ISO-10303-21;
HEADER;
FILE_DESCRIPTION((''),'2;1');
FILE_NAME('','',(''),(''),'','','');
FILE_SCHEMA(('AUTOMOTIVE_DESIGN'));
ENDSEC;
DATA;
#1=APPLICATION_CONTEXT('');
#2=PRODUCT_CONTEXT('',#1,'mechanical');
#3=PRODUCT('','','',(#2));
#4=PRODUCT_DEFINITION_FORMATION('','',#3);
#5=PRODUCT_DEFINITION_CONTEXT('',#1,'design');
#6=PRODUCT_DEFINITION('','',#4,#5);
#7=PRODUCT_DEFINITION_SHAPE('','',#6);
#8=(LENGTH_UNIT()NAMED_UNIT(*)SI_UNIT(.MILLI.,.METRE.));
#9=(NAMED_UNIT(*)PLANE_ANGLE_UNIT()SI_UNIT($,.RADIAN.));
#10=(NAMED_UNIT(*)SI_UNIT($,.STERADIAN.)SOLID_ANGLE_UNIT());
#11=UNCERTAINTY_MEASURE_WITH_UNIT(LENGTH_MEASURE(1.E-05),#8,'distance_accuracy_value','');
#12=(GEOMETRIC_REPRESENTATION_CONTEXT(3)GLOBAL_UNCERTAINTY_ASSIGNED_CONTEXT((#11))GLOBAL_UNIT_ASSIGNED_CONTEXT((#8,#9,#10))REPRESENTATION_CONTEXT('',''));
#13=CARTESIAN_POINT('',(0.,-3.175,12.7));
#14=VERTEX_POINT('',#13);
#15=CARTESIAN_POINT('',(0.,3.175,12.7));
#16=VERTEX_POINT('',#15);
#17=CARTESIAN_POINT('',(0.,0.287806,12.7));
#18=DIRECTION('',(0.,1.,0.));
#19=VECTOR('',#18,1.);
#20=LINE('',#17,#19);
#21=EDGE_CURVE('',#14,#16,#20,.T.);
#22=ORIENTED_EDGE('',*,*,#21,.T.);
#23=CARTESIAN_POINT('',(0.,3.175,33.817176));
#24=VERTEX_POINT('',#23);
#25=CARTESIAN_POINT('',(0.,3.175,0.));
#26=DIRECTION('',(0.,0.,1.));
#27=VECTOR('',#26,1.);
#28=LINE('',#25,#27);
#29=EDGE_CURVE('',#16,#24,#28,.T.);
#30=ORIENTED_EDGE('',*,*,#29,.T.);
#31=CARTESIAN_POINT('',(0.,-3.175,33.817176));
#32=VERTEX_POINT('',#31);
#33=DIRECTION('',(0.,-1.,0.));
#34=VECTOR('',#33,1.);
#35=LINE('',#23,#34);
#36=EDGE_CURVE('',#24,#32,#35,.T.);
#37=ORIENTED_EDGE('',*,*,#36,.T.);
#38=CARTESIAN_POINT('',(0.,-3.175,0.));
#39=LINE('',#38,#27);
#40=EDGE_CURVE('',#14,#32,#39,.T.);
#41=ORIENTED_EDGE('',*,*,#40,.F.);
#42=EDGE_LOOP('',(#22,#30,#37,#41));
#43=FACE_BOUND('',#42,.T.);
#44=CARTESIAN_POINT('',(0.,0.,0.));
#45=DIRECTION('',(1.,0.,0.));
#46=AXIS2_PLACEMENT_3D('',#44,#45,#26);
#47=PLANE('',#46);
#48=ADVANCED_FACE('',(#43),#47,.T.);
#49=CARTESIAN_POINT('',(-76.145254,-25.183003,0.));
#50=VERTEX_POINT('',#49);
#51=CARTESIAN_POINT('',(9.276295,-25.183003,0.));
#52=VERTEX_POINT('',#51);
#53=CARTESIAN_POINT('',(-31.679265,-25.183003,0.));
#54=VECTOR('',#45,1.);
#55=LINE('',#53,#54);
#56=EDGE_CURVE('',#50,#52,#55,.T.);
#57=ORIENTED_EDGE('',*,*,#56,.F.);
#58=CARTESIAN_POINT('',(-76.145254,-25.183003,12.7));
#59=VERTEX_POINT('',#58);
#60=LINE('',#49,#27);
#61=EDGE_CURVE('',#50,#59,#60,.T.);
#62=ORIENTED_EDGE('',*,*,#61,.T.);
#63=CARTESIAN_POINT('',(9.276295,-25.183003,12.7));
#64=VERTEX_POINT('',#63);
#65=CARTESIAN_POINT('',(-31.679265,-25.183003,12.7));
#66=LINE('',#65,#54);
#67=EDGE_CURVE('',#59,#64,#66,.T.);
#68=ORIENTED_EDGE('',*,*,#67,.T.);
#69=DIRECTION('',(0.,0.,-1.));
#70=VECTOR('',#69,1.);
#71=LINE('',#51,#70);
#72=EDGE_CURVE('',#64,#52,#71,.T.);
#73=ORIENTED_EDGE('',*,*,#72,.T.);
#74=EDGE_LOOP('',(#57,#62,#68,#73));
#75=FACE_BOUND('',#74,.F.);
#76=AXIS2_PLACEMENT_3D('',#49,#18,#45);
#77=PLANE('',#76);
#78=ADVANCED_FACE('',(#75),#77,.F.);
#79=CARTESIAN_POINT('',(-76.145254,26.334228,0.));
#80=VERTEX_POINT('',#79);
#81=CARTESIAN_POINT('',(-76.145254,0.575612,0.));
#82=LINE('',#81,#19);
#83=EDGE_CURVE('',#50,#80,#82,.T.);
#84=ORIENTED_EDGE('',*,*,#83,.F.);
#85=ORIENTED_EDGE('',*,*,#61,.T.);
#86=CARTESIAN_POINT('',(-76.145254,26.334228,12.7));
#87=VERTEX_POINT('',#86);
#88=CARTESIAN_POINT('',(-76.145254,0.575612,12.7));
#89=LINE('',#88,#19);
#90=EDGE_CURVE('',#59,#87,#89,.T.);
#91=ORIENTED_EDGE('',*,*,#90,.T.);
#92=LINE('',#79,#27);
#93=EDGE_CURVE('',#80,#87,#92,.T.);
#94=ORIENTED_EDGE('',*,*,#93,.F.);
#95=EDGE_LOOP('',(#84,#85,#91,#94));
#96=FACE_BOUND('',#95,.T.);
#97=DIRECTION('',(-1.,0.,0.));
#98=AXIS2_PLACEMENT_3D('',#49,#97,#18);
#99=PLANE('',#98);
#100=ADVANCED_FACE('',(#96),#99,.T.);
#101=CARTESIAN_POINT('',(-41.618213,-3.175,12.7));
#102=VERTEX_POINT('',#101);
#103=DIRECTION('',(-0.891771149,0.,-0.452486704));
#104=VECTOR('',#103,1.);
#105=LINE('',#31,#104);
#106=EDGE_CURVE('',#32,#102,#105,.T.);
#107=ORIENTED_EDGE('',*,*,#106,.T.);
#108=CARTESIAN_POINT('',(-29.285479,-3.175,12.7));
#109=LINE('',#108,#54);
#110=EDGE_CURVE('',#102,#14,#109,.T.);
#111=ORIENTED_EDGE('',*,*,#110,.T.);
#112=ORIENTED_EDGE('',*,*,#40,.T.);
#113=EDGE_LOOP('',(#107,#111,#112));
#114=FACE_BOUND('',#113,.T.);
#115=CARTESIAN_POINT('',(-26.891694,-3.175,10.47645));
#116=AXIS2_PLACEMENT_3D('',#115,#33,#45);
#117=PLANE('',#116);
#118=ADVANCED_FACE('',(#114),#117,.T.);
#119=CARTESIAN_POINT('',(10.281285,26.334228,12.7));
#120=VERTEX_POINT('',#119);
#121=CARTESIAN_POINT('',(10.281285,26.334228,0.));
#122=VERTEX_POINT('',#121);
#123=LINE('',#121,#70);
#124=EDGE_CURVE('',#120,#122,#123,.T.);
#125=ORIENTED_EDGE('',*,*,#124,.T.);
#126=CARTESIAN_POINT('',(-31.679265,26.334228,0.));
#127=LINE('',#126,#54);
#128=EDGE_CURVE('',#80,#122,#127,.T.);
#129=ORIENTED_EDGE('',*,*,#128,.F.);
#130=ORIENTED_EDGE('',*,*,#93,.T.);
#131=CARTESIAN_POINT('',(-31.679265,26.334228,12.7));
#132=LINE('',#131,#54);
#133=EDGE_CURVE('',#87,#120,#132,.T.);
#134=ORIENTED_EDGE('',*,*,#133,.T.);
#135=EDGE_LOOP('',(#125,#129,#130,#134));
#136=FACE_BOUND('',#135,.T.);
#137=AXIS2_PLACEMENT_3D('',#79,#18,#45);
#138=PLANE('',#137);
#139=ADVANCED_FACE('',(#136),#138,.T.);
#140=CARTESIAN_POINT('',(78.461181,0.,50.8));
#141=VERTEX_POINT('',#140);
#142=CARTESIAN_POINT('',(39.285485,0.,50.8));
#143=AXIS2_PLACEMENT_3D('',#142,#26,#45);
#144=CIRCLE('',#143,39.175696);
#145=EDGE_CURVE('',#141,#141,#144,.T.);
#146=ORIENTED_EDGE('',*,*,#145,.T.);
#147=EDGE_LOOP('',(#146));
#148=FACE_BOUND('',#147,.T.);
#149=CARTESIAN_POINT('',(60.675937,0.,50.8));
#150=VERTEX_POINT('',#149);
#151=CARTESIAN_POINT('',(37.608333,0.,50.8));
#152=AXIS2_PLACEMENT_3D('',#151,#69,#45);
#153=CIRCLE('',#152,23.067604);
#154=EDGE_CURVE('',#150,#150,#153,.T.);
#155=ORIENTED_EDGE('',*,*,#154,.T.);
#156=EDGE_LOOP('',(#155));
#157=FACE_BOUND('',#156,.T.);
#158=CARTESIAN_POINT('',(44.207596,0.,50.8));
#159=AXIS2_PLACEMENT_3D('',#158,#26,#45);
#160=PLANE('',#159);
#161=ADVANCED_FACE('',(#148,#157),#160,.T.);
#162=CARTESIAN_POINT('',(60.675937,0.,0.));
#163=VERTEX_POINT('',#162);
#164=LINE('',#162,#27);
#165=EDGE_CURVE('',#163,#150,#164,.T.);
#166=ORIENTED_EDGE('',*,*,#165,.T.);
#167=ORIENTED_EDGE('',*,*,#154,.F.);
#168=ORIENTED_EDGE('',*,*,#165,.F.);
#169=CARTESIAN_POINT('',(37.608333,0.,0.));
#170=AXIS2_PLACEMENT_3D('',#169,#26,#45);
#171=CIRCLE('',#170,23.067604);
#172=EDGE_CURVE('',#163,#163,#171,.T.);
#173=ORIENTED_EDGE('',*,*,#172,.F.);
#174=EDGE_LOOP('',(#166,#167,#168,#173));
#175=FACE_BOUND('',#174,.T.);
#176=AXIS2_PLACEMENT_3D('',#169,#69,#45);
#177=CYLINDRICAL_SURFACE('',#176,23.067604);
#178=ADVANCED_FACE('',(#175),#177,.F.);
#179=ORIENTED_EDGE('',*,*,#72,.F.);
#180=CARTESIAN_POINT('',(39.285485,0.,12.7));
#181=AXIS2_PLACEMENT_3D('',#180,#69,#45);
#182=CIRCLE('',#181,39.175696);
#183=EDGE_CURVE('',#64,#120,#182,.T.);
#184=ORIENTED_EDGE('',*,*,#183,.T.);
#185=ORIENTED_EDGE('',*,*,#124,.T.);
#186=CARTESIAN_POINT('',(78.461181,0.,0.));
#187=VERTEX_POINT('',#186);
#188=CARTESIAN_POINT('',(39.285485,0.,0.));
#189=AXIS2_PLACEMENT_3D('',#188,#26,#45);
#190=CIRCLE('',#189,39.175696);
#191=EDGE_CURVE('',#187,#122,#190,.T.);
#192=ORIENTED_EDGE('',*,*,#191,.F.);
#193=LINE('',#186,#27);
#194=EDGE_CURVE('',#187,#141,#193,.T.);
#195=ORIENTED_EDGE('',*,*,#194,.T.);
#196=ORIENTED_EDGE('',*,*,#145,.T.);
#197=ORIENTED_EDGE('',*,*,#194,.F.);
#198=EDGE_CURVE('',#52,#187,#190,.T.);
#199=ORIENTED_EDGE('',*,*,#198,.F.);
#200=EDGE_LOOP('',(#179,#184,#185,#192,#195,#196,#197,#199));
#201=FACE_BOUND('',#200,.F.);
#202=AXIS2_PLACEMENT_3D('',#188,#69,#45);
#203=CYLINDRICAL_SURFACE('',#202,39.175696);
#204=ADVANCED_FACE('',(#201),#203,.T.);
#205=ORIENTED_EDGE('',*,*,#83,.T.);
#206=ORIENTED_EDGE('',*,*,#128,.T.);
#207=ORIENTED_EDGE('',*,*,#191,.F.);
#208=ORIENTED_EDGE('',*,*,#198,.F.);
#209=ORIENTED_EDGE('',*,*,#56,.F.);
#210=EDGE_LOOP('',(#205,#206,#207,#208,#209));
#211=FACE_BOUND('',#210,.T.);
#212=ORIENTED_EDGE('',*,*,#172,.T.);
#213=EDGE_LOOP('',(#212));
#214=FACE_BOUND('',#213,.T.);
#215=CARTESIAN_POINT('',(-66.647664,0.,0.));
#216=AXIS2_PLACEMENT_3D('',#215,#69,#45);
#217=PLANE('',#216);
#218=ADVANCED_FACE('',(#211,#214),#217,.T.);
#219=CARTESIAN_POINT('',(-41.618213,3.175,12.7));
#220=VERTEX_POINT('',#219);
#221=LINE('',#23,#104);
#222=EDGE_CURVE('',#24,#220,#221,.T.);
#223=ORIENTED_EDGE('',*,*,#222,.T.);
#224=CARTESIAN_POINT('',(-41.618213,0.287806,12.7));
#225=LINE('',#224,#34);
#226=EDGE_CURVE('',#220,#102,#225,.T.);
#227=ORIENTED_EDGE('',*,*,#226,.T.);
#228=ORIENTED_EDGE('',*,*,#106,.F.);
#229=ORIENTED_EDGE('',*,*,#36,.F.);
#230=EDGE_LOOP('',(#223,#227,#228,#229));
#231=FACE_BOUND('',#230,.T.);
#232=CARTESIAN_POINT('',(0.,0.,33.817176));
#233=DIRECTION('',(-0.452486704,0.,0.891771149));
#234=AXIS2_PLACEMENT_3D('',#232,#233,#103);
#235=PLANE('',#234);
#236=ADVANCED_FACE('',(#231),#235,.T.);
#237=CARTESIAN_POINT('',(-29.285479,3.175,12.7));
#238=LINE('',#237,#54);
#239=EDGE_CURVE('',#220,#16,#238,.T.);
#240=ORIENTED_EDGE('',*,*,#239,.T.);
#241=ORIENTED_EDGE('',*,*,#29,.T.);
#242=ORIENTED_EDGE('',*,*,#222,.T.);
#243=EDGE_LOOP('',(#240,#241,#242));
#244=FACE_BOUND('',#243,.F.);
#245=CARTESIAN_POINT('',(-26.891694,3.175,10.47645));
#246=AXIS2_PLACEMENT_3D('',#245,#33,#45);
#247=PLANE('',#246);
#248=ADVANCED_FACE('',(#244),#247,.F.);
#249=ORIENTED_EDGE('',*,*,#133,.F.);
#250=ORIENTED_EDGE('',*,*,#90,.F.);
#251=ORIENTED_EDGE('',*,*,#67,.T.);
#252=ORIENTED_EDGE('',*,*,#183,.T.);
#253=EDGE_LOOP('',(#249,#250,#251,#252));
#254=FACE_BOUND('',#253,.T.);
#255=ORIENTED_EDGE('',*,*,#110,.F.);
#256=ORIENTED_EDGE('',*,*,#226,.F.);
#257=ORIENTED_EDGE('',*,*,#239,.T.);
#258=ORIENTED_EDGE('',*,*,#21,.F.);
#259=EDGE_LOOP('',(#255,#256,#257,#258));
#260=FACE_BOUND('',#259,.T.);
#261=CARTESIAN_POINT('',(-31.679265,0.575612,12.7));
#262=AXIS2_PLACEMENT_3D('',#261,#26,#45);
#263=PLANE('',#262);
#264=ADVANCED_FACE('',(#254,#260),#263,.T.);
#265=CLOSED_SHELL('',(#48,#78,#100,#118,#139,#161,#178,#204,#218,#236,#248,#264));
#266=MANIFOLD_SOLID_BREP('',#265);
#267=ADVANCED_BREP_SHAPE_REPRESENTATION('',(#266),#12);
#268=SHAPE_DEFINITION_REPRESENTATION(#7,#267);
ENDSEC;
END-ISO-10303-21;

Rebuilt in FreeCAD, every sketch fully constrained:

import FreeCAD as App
import Part
import Sketcher
from FreeCAD import Vector

doc = App.newDocument("Part")
params = doc.addObject("Spreadsheet::Sheet", "Params")
for row, (alias, value) in enumerate([
    ("pad1_length", "2 in"),
    ("pocket1_length", "5.12 in"),
    ("pad2_length", "0.5 in"),
    ("pad3_length", "0.25 in"),
], start=1):
    params.set(f"A{row}", alias)
    params.set(f"B{row}", "=" + value)
    params.setAlias(f"B{row}", alias)

body = doc.addObject("PartDesign::Body", "Body")

sketch1 = doc.addObject("Sketcher::SketchObject", "Sketch")
body.addObject(sketch1)
sketch1.AttachmentSupport = (doc.XY_Plane, [""])
sketch1.MapMode = "FlatFace"
sketch1.addGeometry(Part.Circle(Vector(39, 0, 0), Vector(0, 0, 1), 39), False)
sketch1.addConstraint([
    Sketcher.Constraint("PointOnObject", 0, 3, -1),
    Sketcher.Constraint("Diameter", 0, 78.351392),
    Sketcher.Constraint("DistanceX", -1, 1, 0, 3, 39.285485),
])
pad1 = doc.addObject("PartDesign::Pad", "Pad")
body.addObject(pad1)
pad1.Profile = sketch1
pad1.setExpression("Length", "Params.pad1_length")

sketch2 = doc.addObject("Sketcher::SketchObject", "Sketch001")
body.addObject(sketch2)
sketch2.AttachmentSupport = (doc.XY_Plane, [""])
sketch2.MapMode = "FlatFace"
sketch2.addGeometry(Part.Circle(Vector(38, 0, 0), Vector(0, 0, 1), 23), False)
sketch2.addConstraint([
    Sketcher.Constraint("PointOnObject", 0, 3, -1),
    Sketcher.Constraint("Diameter", 0, 46.135208),
    Sketcher.Constraint("DistanceX", -1, 1, 0, 3, 37.608333),
])
pocket1 = doc.addObject("PartDesign::Pocket", "Pocket")
body.addObject(pocket1)
pocket1.Profile = sketch2
pocket1.setExpression("Length", "Params.pocket1_length")
pocket1.Reversed = True

sketch3 = doc.addObject("Sketcher::SketchObject", "Sketch002")
body.addObject(sketch3)
sketch3.AttachmentSupport = (doc.XY_Plane, [""])
sketch3.MapMode = "FlatFace"
sketch3.addGeometry([
    Part.LineSegment(Vector(-76, 26, 0), Vector(-76, -25, 0)),
    Part.LineSegment(Vector(-76, -25, 0), Vector(13, -25, 0)),
    Part.LineSegment(Vector(13, -25, 0), Vector(13, 26, 0)),
    Part.LineSegment(Vector(13, 26, 0), Vector(-76, 26, 0)),
], False)
sketch3.addConstraint([
    Sketcher.Constraint("Coincident", 0, 2, 1, 1),
    Sketcher.Constraint("Coincident", 1, 2, 2, 1),
    Sketcher.Constraint("Coincident", 2, 2, 3, 1),
    Sketcher.Constraint("Coincident", 3, 2, 0, 1),
    Sketcher.Constraint("Vertical", 0),
    Sketcher.Constraint("Horizontal", 1),
    Sketcher.Constraint("Vertical", 2),
    Sketcher.Constraint("Horizontal", 3),
    Sketcher.Constraint("DistanceY", 0, 2, 0, 1, 51.517231),
    Sketcher.Constraint("DistanceX", 1, 1, 1, 2, 88.931978),
    Sketcher.Constraint("DistanceX", 0, 2, -1, 1, 76.145254),
    Sketcher.Constraint("DistanceY", 0, 2, -1, 1, 25.183003),
])
pad2 = doc.addObject("PartDesign::Pad", "Pad001")
body.addObject(pad2)
pad2.Profile = sketch3
pad2.setExpression("Length", "Params.pad2_length")

sketch4 = doc.addObject("Sketcher::SketchObject", "Sketch003")
body.addObject(sketch4)
sketch4.AttachmentSupport = (doc.XZ_Plane, [""])
sketch4.MapMode = "FlatFace"
sketch4.addGeometry([
    Part.LineSegment(Vector(0, 0, 0), Vector(0, 34, 0)),
    Part.LineSegment(Vector(0, 34, 0), Vector(-67, 0, 0)),
    Part.LineSegment(Vector(-67, 0, 0), Vector(0, 0, 0)),
], False)
sketch4.addConstraint([
    Sketcher.Constraint("Coincident", 0, 2, 1, 1),
    Sketcher.Constraint("Coincident", 1, 2, 2, 1),
    Sketcher.Constraint("Coincident", 2, 2, 0, 1),
    Sketcher.Constraint("Vertical", 0),
    Sketcher.Constraint("Horizontal", 2),
    Sketcher.Constraint("Coincident", 2, 2, -1, 1),
    Sketcher.Constraint("DistanceX", 2, 1, 2, 2, 66.647664),
    Sketcher.Constraint("DistanceY", 0, 1, 0, 2, 33.817176),
])
pad3 = doc.addObject("PartDesign::Pad", "Pad002")
body.addObject(pad3)
pad3.Profile = sketch4
pad3.setExpression("Length", "Params.pad3_length")
pad3.Midplane = True

doc.recompute()
